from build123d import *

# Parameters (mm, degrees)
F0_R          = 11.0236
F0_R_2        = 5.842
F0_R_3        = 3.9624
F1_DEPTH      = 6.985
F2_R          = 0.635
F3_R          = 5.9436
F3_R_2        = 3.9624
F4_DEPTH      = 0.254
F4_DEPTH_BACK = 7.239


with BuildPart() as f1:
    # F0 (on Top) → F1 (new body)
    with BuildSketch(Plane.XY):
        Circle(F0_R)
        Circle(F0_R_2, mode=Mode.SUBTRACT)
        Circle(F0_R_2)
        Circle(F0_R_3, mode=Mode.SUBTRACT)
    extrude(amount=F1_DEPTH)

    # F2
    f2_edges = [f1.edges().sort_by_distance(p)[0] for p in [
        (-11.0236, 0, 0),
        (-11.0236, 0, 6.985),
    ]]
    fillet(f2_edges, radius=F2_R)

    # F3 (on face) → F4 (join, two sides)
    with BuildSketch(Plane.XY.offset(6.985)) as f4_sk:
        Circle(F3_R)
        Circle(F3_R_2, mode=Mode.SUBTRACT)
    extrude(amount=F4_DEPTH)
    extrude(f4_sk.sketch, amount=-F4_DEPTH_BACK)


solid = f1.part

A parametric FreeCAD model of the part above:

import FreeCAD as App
import Part
import Sketcher
from FreeCAD import Vector
Q = App.Units.Quantity


def edges_at(feature, points):
    """Names of the edges that pass closest to the given points."""
    edges = feature.Shape.Edges
    near = lambda p: min(range(len(edges)), key=lambda i: edges[i].distToShape(Part.Vertex(*p))[0])
    return sorted({f"Edge{near(p) + 1}" for p in points})

doc = App.newDocument("Part")
body = doc.addObject("PartDesign::Body", "Body")

# Sketch on XY plane
sketch1 = doc.addObject("Sketcher::SketchObject", "Sketch")
body.addObject(sketch1)
sketch1.AttachmentSupport = (doc.XY_Plane, [""])
sketch1.MapMode = "FlatFace"
sketch1.addGeometry([
    Part.Circle(Vector(0, 0, 0), Vector(0, 0, 1), 11.0236),
    Part.Circle(Vector(0, 0, 0), Vector(0, 0, 1), 3.9624),
], False)
sketch1.addConstraint([
    Sketcher.Constraint("Coincident", 0, 3, -1, 1),
    Sketcher.Constraint("Coincident", 1, 3, -1, 1),
    Sketcher.Constraint("Diameter", 0, Q("0.868 in")),
    Sketcher.Constraint("Diameter", 1, Q("0.312 in")),
])
pad1 = doc.addObject("PartDesign::Pad", "Pad")
body.addObject(pad1)
pad1.Profile = sketch1
pad1.Length = Q("0.275 in")
doc.recompute()

fillet = doc.addObject("PartDesign::Fillet", "Fillet")
body.addObject(fillet)
fillet.Base = (pad1, edges_at(pad1, [(-11.024, 0, 0), (-11.024, 0, 6.985)]))
fillet.Radius = Q("0.025 in")

# Sketch on XY plane
sketch2 = doc.addObject("Sketcher::SketchObject", "Sketch001")
body.addObject(sketch2)
sketch2.AttachmentSupport = (doc.XY_Plane, [""])
sketch2.MapMode = "FlatFace"
sketch2.AttachmentOffset = App.Placement(Vector(0, 0, 0.275 * 25.4), App.Rotation())
sketch2.addGeometry([
    Part.Circle(Vector(0, 0, 0), Vector(0, 0, 1), 5.9436),
    Part.Circle(Vector(0, 0, 0), Vector(0, 0, 1), 3.9624),
], False)
sketch2.addConstraint([
    Sketcher.Constraint("Coincident", 0, 3, -1, 1),
    Sketcher.Constraint("Coincident", 1, 3, -1, 1),
    Sketcher.Constraint("Diameter", 0, Q("0.468 in")),
    Sketcher.Constraint("Diameter", 1, Q("0.312 in")),
])
pad2 = doc.addObject("PartDesign::Pad", "Pad001")
body.addObject(pad2)
pad2.Profile = sketch2
pad2.Type = "TwoLengths"
pad2.Length = Q("0.01 in")
pad2.Length2 = Q("0.285 in")

doc.recompute()
